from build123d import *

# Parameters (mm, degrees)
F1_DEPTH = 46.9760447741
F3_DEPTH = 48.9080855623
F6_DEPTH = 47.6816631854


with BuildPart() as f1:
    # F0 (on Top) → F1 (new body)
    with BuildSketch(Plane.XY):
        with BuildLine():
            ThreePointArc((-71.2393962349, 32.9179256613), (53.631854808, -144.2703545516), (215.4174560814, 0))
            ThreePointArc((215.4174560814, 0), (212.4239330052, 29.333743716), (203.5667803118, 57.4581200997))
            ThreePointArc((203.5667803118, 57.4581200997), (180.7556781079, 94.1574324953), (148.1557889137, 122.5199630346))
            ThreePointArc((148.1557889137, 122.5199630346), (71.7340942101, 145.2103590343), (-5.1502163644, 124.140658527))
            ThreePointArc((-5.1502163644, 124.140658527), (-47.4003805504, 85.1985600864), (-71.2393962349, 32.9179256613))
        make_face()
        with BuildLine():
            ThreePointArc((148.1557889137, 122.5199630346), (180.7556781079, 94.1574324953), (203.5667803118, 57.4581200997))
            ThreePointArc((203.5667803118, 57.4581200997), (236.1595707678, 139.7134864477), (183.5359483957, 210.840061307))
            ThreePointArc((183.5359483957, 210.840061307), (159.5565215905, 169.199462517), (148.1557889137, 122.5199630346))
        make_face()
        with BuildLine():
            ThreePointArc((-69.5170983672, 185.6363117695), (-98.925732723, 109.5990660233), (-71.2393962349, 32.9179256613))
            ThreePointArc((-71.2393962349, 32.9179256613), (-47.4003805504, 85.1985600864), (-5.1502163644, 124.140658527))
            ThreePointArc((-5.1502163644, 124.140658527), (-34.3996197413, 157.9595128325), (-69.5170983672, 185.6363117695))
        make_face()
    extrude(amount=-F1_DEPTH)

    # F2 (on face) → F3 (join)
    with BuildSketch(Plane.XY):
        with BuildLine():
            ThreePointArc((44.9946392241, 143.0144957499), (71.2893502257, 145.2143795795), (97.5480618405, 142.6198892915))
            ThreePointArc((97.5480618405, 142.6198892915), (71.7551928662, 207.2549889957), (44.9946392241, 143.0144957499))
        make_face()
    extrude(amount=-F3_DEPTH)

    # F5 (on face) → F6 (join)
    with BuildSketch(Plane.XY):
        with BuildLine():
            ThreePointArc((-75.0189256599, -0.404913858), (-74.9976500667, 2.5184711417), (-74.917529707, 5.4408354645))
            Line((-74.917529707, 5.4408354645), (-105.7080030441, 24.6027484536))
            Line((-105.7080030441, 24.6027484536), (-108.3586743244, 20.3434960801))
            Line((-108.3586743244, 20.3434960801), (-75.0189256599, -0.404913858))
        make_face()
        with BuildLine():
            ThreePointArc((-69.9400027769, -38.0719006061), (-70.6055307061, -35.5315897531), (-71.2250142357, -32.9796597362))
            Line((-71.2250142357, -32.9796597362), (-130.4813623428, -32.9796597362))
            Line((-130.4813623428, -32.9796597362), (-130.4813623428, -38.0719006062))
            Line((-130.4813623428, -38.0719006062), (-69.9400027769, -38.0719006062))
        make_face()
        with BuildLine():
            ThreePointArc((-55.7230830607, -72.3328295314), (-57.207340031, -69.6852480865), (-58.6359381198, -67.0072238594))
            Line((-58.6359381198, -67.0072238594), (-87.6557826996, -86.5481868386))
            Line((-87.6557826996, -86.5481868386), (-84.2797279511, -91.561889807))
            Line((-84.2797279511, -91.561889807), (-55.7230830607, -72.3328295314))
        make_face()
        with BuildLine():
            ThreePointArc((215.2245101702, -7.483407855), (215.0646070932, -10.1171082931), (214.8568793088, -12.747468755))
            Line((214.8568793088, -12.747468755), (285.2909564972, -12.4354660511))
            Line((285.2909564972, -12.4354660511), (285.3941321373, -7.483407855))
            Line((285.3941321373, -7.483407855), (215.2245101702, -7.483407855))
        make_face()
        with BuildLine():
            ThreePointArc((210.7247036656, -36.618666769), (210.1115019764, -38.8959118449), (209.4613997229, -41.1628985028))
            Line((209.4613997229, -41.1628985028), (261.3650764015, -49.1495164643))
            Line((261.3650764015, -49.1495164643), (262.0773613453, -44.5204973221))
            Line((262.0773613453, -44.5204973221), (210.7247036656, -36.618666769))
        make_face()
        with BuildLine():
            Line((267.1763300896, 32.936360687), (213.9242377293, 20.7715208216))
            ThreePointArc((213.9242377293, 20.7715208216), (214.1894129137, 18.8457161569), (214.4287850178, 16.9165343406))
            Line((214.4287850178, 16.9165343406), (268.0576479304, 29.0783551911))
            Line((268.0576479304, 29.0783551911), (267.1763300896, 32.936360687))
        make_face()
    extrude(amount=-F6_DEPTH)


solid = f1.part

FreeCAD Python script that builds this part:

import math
import FreeCAD as App
import Part
import Sketcher

V = App.Vector
Q = App.Units.Quantity

doc = App.newDocument("Part")
body = doc.addObject("PartDesign::Body", "Body")

# Sketch on XY plane
sketch1 = body.newObject("Sketcher::SketchObject", "Sketch")
sketch1.AttachmentSupport = (doc.getObject("XY_Plane"), [""])
sketch1.MapMode = "FlatFace"
sketch1.addGeometry(Part.ArcOfCircle(Part.Circle(V(70, 0, 0), V(0, 0, 1), 145), math.radians(0), math.radians(23)), False)
sketch1.addGeometry(Part.ArcOfCircle(Part.Circle(V(146, 128, 0), V(0, 0, 1), 91), math.radians(-51), math.radians(66)), False)
sketch1.addGeometry(Part.ArcOfCircle(Part.Circle(V(318, 106, 0), V(0, 0, 1), 170), math.radians(142), math.radians(174)), False)
sketch1.addGeometry(Part.ArcOfCircle(Part.Circle(V(70, 0, 0), V(0, 0, 1), 145), math.radians(58), math.radians(121)), False)
sketch1.addGeometry(Part.ArcOfCircle(Part.Circle(V(-197, -12, 0), V(0, 0, 1), 235), math.radians(35), math.radians(57)), False)
sketch1.addGeometry(Part.ArcOfCircle(Part.Circle(V(17, 108, 0), V(0, 0, 1), 116), math.radians(138), math.radians(220)), False)
sketch1.addGeometry(Part.ArcOfCircle(Part.Circle(V(70, 0, 0), V(0, 0, 1), 145), math.radians(167), math.radians(360)), False)
sketch1.addConstraint(Sketcher.Constraint("Coincident", 0, 2, 1, 1))
sketch1.addConstraint(Sketcher.Constraint("Coincident", 1, 2, 2, 1))
sketch1.addConstraint(Sketcher.Constraint("Coincident", 2, 2, 3, 1))
sketch1.addConstraint(Sketcher.Constraint("Coincident", 3, 2, 4, 1))
sketch1.addConstraint(Sketcher.Constraint("Coincident", 4, 2, 5, 1))
sketch1.addConstraint(Sketcher.Constraint("Coincident", 5, 2, 6, 1))
sketch1.addConstraint(Sketcher.Constraint("Tangent", 6, 2, 0, 1))
sketch1.addConstraint(Sketcher.Constraint("Coincident", 3, 3, 0, 3))
sketch1.addConstraint(Sketcher.Constraint("Equal", 0, 3))
sketch1.addConstraint(Sketcher.Constraint("Equal", 3, 6))
sketch1.addConstraint(Sketcher.Constraint("PointOnObject", 0, 3, -1))
sketch1.addConstraint(Sketcher.Constraint("PointOnObject", 6, 2, -1))
sketch1.addConstraint(Sketcher.Constraint("Radius", 1, Q("91.089521 mm")))
sketch1.addConstraint(Sketcher.Constraint("Radius", 0, Q("145.218473 mm")))
sketch1.addConstraint(Sketcher.Constraint("Radius", 2, Q("170.397022 mm")))
sketch1.addConstraint(Sketcher.Constraint("Radius", 4, Q("235.353016 mm")))
sketch1.addConstraint(Sketcher.Constraint("Radius", 5, Q("116.404436 mm")))
sketch1.addConstraint(Sketcher.Constraint("DistanceX", 4, 3, -1, 1, Q("196.980599 mm")))
sketch1.addConstraint(Sketcher.Constraint("DistanceX", -1, 1, 5, 3, Q("17.471302 mm")))
sketch1.addConstraint(Sketcher.Constraint("DistanceX", 4, 2, -1, 1, Q("69.517098 mm")))
sketch1.addConstraint(Sketcher.Constraint("DistanceY", 4, 3, 2, 3, Q("118.047499 mm")))
sketch1.addConstraint(Sketcher.Constraint("DistanceY", 1, 3, 1, 2, Q("82.9222 mm")))
sketch1.addConstraint(Sketcher.Constraint("DistanceY", 2, 2, 1, 2, Q("88.320098 mm")))
sketch1.addConstraint(Sketcher.Constraint("DistanceX", 3, 2, 3, 3, Q("75.349199 mm")))
sketch1.addConstraint(Sketcher.Constraint("DistanceY", -1, 1, 1, 3, Q("127.917861 mm")))
sketch1.addConstraint(Sketcher.Constraint("DistanceX", -1, 1, 0, 2, Q("203.56678 mm")))
pad1 = body.newObject("PartDesign::Pad", "Pad")
pad1.Profile = sketch1
pad1.Length = 46.976045
pad1.Reversed = True

# Sketch on XY plane
sketch2 = body.newObject("Sketcher::SketchObject", "Sketch001")
sketch2.AttachmentSupport = (doc.getObject("XY_Plane"), [""])
sketch2.MapMode = "FlatFace"
sketch2.addGeometry(Part.ArcOfCircle(Part.Circle(V(70, 0, 0), V(0, 0, 1), 145), math.radians(79), math.radians(100)), False)
sketch2.addGeometry(Part.ArcOfCircle(Part.Circle(V(71, 170, 0), V(0, 0, 1), 38), math.radians(-46), math.radians(225)), False)
sketch2.addConstraint(Sketcher.Constraint("Coincident", 0, 1, 1, 1))
sketch2.addConstraint(Sketcher.Constraint("Coincident", 1, 2, 0, 2))
sketch2.addConstraint(Sketcher.Constraint("PointOnObject", 0, 3, -1))
sketch2.addConstraint(Sketcher.Constraint("Radius", 1, Q("37.577571 mm")))
sketch2.addConstraint(Sketcher.Constraint("Radius", 0, Q("145.218473 mm")))
sketch2.addConstraint(Sketcher.Constraint("DistanceX", -1, 1, 0, 1, Q("97.548062 mm")))
sketch2.addConstraint(Sketcher.Constraint("DistanceY", -1, 1, 0, 1, Q("142.619889 mm")))
sketch2.addConstraint(Sketcher.Constraint("DistanceX", -1, 1, 1, 2, Q("44.994639 mm")))
pad2 = body.newObject("PartDesign::Pad", "Pad001")
pad2.Profile = sketch2
pad2.Length = 48.908086
pad2.Reversed = True

# Sketch on XY plane
sketch3 = body.newObject("Sketcher::SketchObject", "Sketch002")
sketch3.AttachmentSupport = (doc.getObject("XY_Plane"), [""])
sketch3.MapMode = "FlatFace"
sketch3.addGeometry(Part.ArcOfCircle(Part.Circle(V(70.198983, 0, 0), V(0, 0, 1), 145.218473), math.radians(177.852822), math.radians(180.159758)), False)
sketch3.addGeometry(Part.LineSegment(V(-74.91753, 5.440835, 0), V(-105.708003, 24.602748, 0)), False)
sketch3.addGeometry(Part.LineSegment(V(-105.708003, 24.602748, 0), V(-108.358674, 20.343496, 0)), False)
sketch3.addGeometry(Part.LineSegment(V(-108.358674, 20.343496, 0), V(-75.018926, -0.404914, 0)), False)
sketch3.addGeometry(Part.ArcOfCircle(Part.Circle(V(70.198983, 0, 0), V(0, 0, 1), 145.218473), math.radians(-166.873383), math.radians(-164.80115)), False)
sketch3.addGeometry(Part.LineSegment(V(-71.225014, -32.97966, 0), V(-130.481362, -32.97966, 0)), False)
sketch3.addGeometry(Part.LineSegment(V(-130.481362, -32.97966, 0), V(-130.481362, -38.071901, 0)), False)
sketch3.addGeometry(Part.LineSegment(V(-130.481362, -38.071901, 0), V(-69.940003, -38.071901, 0)), False)
sketch3.addGeometry(Part.ArcOfCircle(Part.Circle(V(70.198983, 0, 0), V(0, 0, 1), 145.218473), math.radians(-152.520995), math.radians(-150.125847)), False)
sketch3.addGeometry(Part.LineSegment(V(-58.635938, -67.007224, 0), V(-87.655783, -86.548187, 0)), False)
sketch3.addGeometry(Part.LineSegment(V(-87.655783, -86.548187, 0), V(-84.279728, -91.56189, 0)), False)
sketch3.addGeometry(Part.LineSegment(V(-84.279728, -91.56189, 0), V(-55.723083, -72.33283, 0)), False)
sketch3.addGeometry(Part.ArcOfCircle(Part.Circle(V(70.198983, 0, 0), V(0, 0, 1), 145.218473), math.radians(-5.035981), math.radians(-2.953878)), False)
sketch3.addGeometry(Part.LineSegment(V(214.856879, -12.747469, 0), V(285.290956, -12.435466, 0)), False)
sketch3.addGeometry(Part.LineSegment(V(285.290956, -12.435466, 0), V(285.394132, -7.483408, 0)), False)
sketch3.addGeometry(Part.LineSegment(V(285.394132, -7.483408, 0), V(215.22451, -7.483408, 0)), False)
sketch3.addGeometry(Part.ArcOfCircle(Part.Circle(V(70.198982, 0, 0), V(0, 0, 1), 145.218474), math.radians(-16.466517), math.radians(-14.60552)), False)
sketch3.addGeometry(Part.LineSegment(V(209.4614, -41.162899, 0), V(261.365076, -49.149516, 0)), False)
sketch3.addGeometry(Part.LineSegment(V(261.365076, -49.149516, 0), V(262.077361, -44.520497, 0)), False)
sketch3.addGeometry(Part.LineSegment(V(262.077361, -44.520497, 0), V(210.724704, -36.618667, 0)), False)
sketch3.addGeometry(Part.LineSegment(V(267.17633, 32.936361, 0), V(213.924238, 20.771521, 0)), False)
sketch3.addGeometry(Part.ArcOfCircle(Part.Circle(V(70.198982, 0, 0), V(0, 0, 1), 145.218474), math.radians(6.689587), math.radians(8.223585)), False)
sketch3.addGeometry(Part.LineSegment(V(214.428785, 16.916534, 0), V(268.057648, 29.078355, 0)), False)
sketch3.addGeometry(Part.LineSegment(V(268.057648, 29.078355, 0), V(267.17633, 32.936361, 0)), False)
sketch3.addConstraint(Sketcher.Constraint("Coincident", 0, 1, 1, 1))
sketch3.addConstraint(Sketcher.Constraint("Coincident", 1, 2, 2, 1))
sketch3.addConstraint(Sketcher.Constraint("Coincident", 2, 2, 3, 1))
sketch3.addConstraint(Sketcher.Constraint("Coincident", 3, 2, 0, 2))
sketch3.addConstraint(Sketcher.Constraint("Coincident", 4, 1, 5, 1))
sketch3.addConstraint(Sketcher.Constraint("Coincident", 5, 2, 6, 1))
sketch3.addConstraint(Sketcher.Constraint("Coincident", 6, 2, 7, 1))
sketch3.addConstraint(Sketcher.Constraint("Coincident", 7, 2, 4, 2))
sketch3.addConstraint(Sketcher.Constraint("Coincident", 8, 1, 9, 1))
sketch3.addConstraint(Sketcher.Constraint("Coincident", 9, 2, 10, 1))
sketch3.addConstraint(Sketcher.Constraint("Coincident", 10, 2, 11, 1))
sketch3.addConstraint(Sketcher.Constraint("Coincident", 11, 2, 8, 2))
sketch3.addConstraint(Sketcher.Constraint("Coincident", 12, 1, 13, 1))
sketch3.addConstraint(Sketcher.Constraint("Coincident", 13, 2, 14, 1))
sketch3.addConstraint(Sketcher.Constraint("Coincident", 14, 2, 15, 1))
sketch3.addConstraint(Sketcher.Constraint("Coincident", 15, 2, 12, 2))
sketch3.addConstraint(Sketcher.Constraint("Coincident", 16, 1, 17, 1))
sketch3.addConstraint(Sketcher.Constraint("Coincident", 17, 2, 18, 1))
sketch3.addConstraint(Sketcher.Constraint("Coincident", 18, 2, 19, 1))
sketch3.addConstraint(Sketcher.Constraint("Coincident", 19, 2, 16, 2))
sketch3.addConstraint(Sketcher.Constraint("Coincident", 20, 2, 21, 2))
sketch3.addConstraint(Sketcher.Constraint("Coincident", 21, 1, 22, 1))
sketch3.addConstraint(Sketcher.Constraint("Coincident", 22, 2, 23, 1))
sketch3.addConstraint(Sketcher.Constraint("Coincident", 23, 2, 20, 1))
sketch3.addConstraint(Sketcher.Constraint("Horizontal", 5))
sketch3.addConstraint(Sketcher.Constraint("Vertical", 6))
sketch3.addConstraint(Sketcher.Constraint("Horizontal", 7))
sketch3.addConstraint(Sketcher.Constraint("Horizontal", 15))
sketch3.addConstraint(Sketcher.Constraint("Coincident", 4, 3, 0, 3))
sketch3.addConstraint(Sketcher.Constraint("Coincident", 8, 3, 0, 3))
sketch3.addConstraint(Sketcher.Constraint("Coincident", 12, 3, 0, 3))
sketch3.addConstraint(Sketcher.Constraint("Coincident", 16, 3, 0, 3))
sketch3.addConstraint(Sketcher.Constraint("Coincident", 21, 3, 0, 3))
sketch3.addConstraint(Sketcher.Constraint("PointOnObject", 0, 3, -1))
sketch3.addConstraint(Sketcher.Constraint("Radius", 0, Q("145.218473 mm")))
sketch3.addConstraint(Sketcher.Constraint("Radius", 4, Q("145.218473 mm")))
sketch3.addConstraint(Sketcher.Constraint("Radius", 8, Q("145.218473 mm")))
sketch3.addConstraint(Sketcher.Constraint("Radius", 12, Q("145.218473 mm")))
sketch3.addConstraint(Sketcher.Constraint("Radius", 16, Q("145.218474 mm")))
sketch3.addConstraint(Sketcher.Constraint("Radius", 21, Q("145.218474 mm")))
sketch3.addConstraint(Sketcher.Constraint("Distance", 2, Q("5.016701 mm")))
sketch3.addConstraint(Sketcher.Constraint("Distance", 18, Q("4.6835 mm")))
sketch3.addConstraint(Sketcher.Constraint("DistanceX", 5, 2, 5, 1, Q("59.256348 mm")))
sketch3.addConstraint(Sketcher.Constraint("DistanceX", 7, 1, 7, 2, Q("60.54136 mm")))
sketch3.addConstraint(Sketcher.Constraint("DistanceX", 15, 2, 15, 1, Q("70.169622 mm")))
sketch3.addConstraint(Sketcher.Constraint("DistanceY", 6, 2, 6, 1, Q("5.092241 mm")))
sketch3.addConstraint(Sketcher.Constraint("DistanceX", -1, 1, 16, 1, Q("209.4614 mm")))
sketch3.addConstraint(Sketcher.Constraint("DistanceY", 16, 1, -1, 1, Q("41.162899 mm")))
sketch3.addConstraint(Sketcher.Constraint("DistanceX", 9, 2, 11, 2, Q("31.9327 mm")))
sketch3.addConstraint(Sketcher.Constraint("DistanceY", 18, 2, 16, 1, Q("3.357599 mm")))
sketch3.addConstraint(Sketcher.Constraint("DistanceY", 19, 2, 12, 1, Q("23.871198 mm")))
sketch3.addConstraint(Sketcher.Constraint("DistanceY", 19, 2, 21, 1, Q("53.535201 mm")))
sketch3.addConstraint(Sketcher.Constraint("Distance", 1, Q("36.26613 mm")))
sketch3.addConstraint(Sketcher.Constraint("Distance", 3, Q("39.268758 mm")))
sketch3.addConstraint(Sketcher.Constraint("Distance", 9, Q("34.98572 mm")))
sketch3.addConstraint(Sketcher.Constraint("Distance", 13, Q("70.434768 mm")))
sketch3.addConstraint(Sketcher.Constraint("Distance", 22, Q("54.990589 mm")))
sketch3.addConstraint(Sketcher.Constraint("Distance", 23, Q("3.957389 mm")))
sketch3.addConstraint(Sketcher.Constraint("DistanceX", 0, 1, -1, 1, Q("74.91753 mm")))
sketch3.addConstraint(Sketcher.Constraint("DistanceY", -1, 1, 1, 2, Q("24.602748 mm")))
sketch3.addConstraint(Sketcher.Constraint("DistanceX", 8, 1, -1, 1, Q("58.635938 mm")))
sketch3.addConstraint(Sketcher.Constraint("DistanceY", 10, 2, -1, 1, Q("91.56189 mm")))
sketch3.addConstraint(Sketcher.Constraint("DistanceY", 11, 2, -1, 1, Q("72.33283 mm")))
sketch3.addConstraint(Sketcher.Constraint("DistanceX", -1, 1, 12, 1, Q("214.856879 mm")))
sketch3.addConstraint(Sketcher.Constraint("DistanceX", -1, 1, 15, 2, Q("215.22451 mm")))
sketch3.addConstraint(Sketcher.Constraint("DistanceX", -1, 1, 18, 2, Q("262.077361 mm")))
sketch3.addConstraint(Sketcher.Constraint("DistanceY", -1, 1, 20, 2, Q("20.771521 mm")))
sketch3.addConstraint(Sketcher.Constraint("DistanceX", -1, 1, 23, 2, Q("267.17633 mm")))
sketch3.addConstraint(Sketcher.Constraint("DistanceY", -1, 1, 23, 2, Q("32.936361 mm")))
sketch3.addConstraint(Sketcher.Constraint("DistanceX", 2, 2, 1, 2, Q("2.650671 mm")))
sketch3.addConstraint(Sketcher.Constraint("DistanceX", 10, 2, 8, 1, Q("25.64379 mm")))
sketch3.addConstraint(Sketcher.Constraint("DistanceY", 13, 2, 14, 2, Q("4.952058 mm")))
sketch3.addConstraint(Sketcher.Constraint("DistanceX", 17, 2, 13, 2, Q("23.92588 mm")))
pad3 = body.newObject("PartDesign::Pad", "Pad002")
pad3.Profile = sketch3
pad3.Length = 47.681663
pad3.Reversed = True

doc.recompute()
